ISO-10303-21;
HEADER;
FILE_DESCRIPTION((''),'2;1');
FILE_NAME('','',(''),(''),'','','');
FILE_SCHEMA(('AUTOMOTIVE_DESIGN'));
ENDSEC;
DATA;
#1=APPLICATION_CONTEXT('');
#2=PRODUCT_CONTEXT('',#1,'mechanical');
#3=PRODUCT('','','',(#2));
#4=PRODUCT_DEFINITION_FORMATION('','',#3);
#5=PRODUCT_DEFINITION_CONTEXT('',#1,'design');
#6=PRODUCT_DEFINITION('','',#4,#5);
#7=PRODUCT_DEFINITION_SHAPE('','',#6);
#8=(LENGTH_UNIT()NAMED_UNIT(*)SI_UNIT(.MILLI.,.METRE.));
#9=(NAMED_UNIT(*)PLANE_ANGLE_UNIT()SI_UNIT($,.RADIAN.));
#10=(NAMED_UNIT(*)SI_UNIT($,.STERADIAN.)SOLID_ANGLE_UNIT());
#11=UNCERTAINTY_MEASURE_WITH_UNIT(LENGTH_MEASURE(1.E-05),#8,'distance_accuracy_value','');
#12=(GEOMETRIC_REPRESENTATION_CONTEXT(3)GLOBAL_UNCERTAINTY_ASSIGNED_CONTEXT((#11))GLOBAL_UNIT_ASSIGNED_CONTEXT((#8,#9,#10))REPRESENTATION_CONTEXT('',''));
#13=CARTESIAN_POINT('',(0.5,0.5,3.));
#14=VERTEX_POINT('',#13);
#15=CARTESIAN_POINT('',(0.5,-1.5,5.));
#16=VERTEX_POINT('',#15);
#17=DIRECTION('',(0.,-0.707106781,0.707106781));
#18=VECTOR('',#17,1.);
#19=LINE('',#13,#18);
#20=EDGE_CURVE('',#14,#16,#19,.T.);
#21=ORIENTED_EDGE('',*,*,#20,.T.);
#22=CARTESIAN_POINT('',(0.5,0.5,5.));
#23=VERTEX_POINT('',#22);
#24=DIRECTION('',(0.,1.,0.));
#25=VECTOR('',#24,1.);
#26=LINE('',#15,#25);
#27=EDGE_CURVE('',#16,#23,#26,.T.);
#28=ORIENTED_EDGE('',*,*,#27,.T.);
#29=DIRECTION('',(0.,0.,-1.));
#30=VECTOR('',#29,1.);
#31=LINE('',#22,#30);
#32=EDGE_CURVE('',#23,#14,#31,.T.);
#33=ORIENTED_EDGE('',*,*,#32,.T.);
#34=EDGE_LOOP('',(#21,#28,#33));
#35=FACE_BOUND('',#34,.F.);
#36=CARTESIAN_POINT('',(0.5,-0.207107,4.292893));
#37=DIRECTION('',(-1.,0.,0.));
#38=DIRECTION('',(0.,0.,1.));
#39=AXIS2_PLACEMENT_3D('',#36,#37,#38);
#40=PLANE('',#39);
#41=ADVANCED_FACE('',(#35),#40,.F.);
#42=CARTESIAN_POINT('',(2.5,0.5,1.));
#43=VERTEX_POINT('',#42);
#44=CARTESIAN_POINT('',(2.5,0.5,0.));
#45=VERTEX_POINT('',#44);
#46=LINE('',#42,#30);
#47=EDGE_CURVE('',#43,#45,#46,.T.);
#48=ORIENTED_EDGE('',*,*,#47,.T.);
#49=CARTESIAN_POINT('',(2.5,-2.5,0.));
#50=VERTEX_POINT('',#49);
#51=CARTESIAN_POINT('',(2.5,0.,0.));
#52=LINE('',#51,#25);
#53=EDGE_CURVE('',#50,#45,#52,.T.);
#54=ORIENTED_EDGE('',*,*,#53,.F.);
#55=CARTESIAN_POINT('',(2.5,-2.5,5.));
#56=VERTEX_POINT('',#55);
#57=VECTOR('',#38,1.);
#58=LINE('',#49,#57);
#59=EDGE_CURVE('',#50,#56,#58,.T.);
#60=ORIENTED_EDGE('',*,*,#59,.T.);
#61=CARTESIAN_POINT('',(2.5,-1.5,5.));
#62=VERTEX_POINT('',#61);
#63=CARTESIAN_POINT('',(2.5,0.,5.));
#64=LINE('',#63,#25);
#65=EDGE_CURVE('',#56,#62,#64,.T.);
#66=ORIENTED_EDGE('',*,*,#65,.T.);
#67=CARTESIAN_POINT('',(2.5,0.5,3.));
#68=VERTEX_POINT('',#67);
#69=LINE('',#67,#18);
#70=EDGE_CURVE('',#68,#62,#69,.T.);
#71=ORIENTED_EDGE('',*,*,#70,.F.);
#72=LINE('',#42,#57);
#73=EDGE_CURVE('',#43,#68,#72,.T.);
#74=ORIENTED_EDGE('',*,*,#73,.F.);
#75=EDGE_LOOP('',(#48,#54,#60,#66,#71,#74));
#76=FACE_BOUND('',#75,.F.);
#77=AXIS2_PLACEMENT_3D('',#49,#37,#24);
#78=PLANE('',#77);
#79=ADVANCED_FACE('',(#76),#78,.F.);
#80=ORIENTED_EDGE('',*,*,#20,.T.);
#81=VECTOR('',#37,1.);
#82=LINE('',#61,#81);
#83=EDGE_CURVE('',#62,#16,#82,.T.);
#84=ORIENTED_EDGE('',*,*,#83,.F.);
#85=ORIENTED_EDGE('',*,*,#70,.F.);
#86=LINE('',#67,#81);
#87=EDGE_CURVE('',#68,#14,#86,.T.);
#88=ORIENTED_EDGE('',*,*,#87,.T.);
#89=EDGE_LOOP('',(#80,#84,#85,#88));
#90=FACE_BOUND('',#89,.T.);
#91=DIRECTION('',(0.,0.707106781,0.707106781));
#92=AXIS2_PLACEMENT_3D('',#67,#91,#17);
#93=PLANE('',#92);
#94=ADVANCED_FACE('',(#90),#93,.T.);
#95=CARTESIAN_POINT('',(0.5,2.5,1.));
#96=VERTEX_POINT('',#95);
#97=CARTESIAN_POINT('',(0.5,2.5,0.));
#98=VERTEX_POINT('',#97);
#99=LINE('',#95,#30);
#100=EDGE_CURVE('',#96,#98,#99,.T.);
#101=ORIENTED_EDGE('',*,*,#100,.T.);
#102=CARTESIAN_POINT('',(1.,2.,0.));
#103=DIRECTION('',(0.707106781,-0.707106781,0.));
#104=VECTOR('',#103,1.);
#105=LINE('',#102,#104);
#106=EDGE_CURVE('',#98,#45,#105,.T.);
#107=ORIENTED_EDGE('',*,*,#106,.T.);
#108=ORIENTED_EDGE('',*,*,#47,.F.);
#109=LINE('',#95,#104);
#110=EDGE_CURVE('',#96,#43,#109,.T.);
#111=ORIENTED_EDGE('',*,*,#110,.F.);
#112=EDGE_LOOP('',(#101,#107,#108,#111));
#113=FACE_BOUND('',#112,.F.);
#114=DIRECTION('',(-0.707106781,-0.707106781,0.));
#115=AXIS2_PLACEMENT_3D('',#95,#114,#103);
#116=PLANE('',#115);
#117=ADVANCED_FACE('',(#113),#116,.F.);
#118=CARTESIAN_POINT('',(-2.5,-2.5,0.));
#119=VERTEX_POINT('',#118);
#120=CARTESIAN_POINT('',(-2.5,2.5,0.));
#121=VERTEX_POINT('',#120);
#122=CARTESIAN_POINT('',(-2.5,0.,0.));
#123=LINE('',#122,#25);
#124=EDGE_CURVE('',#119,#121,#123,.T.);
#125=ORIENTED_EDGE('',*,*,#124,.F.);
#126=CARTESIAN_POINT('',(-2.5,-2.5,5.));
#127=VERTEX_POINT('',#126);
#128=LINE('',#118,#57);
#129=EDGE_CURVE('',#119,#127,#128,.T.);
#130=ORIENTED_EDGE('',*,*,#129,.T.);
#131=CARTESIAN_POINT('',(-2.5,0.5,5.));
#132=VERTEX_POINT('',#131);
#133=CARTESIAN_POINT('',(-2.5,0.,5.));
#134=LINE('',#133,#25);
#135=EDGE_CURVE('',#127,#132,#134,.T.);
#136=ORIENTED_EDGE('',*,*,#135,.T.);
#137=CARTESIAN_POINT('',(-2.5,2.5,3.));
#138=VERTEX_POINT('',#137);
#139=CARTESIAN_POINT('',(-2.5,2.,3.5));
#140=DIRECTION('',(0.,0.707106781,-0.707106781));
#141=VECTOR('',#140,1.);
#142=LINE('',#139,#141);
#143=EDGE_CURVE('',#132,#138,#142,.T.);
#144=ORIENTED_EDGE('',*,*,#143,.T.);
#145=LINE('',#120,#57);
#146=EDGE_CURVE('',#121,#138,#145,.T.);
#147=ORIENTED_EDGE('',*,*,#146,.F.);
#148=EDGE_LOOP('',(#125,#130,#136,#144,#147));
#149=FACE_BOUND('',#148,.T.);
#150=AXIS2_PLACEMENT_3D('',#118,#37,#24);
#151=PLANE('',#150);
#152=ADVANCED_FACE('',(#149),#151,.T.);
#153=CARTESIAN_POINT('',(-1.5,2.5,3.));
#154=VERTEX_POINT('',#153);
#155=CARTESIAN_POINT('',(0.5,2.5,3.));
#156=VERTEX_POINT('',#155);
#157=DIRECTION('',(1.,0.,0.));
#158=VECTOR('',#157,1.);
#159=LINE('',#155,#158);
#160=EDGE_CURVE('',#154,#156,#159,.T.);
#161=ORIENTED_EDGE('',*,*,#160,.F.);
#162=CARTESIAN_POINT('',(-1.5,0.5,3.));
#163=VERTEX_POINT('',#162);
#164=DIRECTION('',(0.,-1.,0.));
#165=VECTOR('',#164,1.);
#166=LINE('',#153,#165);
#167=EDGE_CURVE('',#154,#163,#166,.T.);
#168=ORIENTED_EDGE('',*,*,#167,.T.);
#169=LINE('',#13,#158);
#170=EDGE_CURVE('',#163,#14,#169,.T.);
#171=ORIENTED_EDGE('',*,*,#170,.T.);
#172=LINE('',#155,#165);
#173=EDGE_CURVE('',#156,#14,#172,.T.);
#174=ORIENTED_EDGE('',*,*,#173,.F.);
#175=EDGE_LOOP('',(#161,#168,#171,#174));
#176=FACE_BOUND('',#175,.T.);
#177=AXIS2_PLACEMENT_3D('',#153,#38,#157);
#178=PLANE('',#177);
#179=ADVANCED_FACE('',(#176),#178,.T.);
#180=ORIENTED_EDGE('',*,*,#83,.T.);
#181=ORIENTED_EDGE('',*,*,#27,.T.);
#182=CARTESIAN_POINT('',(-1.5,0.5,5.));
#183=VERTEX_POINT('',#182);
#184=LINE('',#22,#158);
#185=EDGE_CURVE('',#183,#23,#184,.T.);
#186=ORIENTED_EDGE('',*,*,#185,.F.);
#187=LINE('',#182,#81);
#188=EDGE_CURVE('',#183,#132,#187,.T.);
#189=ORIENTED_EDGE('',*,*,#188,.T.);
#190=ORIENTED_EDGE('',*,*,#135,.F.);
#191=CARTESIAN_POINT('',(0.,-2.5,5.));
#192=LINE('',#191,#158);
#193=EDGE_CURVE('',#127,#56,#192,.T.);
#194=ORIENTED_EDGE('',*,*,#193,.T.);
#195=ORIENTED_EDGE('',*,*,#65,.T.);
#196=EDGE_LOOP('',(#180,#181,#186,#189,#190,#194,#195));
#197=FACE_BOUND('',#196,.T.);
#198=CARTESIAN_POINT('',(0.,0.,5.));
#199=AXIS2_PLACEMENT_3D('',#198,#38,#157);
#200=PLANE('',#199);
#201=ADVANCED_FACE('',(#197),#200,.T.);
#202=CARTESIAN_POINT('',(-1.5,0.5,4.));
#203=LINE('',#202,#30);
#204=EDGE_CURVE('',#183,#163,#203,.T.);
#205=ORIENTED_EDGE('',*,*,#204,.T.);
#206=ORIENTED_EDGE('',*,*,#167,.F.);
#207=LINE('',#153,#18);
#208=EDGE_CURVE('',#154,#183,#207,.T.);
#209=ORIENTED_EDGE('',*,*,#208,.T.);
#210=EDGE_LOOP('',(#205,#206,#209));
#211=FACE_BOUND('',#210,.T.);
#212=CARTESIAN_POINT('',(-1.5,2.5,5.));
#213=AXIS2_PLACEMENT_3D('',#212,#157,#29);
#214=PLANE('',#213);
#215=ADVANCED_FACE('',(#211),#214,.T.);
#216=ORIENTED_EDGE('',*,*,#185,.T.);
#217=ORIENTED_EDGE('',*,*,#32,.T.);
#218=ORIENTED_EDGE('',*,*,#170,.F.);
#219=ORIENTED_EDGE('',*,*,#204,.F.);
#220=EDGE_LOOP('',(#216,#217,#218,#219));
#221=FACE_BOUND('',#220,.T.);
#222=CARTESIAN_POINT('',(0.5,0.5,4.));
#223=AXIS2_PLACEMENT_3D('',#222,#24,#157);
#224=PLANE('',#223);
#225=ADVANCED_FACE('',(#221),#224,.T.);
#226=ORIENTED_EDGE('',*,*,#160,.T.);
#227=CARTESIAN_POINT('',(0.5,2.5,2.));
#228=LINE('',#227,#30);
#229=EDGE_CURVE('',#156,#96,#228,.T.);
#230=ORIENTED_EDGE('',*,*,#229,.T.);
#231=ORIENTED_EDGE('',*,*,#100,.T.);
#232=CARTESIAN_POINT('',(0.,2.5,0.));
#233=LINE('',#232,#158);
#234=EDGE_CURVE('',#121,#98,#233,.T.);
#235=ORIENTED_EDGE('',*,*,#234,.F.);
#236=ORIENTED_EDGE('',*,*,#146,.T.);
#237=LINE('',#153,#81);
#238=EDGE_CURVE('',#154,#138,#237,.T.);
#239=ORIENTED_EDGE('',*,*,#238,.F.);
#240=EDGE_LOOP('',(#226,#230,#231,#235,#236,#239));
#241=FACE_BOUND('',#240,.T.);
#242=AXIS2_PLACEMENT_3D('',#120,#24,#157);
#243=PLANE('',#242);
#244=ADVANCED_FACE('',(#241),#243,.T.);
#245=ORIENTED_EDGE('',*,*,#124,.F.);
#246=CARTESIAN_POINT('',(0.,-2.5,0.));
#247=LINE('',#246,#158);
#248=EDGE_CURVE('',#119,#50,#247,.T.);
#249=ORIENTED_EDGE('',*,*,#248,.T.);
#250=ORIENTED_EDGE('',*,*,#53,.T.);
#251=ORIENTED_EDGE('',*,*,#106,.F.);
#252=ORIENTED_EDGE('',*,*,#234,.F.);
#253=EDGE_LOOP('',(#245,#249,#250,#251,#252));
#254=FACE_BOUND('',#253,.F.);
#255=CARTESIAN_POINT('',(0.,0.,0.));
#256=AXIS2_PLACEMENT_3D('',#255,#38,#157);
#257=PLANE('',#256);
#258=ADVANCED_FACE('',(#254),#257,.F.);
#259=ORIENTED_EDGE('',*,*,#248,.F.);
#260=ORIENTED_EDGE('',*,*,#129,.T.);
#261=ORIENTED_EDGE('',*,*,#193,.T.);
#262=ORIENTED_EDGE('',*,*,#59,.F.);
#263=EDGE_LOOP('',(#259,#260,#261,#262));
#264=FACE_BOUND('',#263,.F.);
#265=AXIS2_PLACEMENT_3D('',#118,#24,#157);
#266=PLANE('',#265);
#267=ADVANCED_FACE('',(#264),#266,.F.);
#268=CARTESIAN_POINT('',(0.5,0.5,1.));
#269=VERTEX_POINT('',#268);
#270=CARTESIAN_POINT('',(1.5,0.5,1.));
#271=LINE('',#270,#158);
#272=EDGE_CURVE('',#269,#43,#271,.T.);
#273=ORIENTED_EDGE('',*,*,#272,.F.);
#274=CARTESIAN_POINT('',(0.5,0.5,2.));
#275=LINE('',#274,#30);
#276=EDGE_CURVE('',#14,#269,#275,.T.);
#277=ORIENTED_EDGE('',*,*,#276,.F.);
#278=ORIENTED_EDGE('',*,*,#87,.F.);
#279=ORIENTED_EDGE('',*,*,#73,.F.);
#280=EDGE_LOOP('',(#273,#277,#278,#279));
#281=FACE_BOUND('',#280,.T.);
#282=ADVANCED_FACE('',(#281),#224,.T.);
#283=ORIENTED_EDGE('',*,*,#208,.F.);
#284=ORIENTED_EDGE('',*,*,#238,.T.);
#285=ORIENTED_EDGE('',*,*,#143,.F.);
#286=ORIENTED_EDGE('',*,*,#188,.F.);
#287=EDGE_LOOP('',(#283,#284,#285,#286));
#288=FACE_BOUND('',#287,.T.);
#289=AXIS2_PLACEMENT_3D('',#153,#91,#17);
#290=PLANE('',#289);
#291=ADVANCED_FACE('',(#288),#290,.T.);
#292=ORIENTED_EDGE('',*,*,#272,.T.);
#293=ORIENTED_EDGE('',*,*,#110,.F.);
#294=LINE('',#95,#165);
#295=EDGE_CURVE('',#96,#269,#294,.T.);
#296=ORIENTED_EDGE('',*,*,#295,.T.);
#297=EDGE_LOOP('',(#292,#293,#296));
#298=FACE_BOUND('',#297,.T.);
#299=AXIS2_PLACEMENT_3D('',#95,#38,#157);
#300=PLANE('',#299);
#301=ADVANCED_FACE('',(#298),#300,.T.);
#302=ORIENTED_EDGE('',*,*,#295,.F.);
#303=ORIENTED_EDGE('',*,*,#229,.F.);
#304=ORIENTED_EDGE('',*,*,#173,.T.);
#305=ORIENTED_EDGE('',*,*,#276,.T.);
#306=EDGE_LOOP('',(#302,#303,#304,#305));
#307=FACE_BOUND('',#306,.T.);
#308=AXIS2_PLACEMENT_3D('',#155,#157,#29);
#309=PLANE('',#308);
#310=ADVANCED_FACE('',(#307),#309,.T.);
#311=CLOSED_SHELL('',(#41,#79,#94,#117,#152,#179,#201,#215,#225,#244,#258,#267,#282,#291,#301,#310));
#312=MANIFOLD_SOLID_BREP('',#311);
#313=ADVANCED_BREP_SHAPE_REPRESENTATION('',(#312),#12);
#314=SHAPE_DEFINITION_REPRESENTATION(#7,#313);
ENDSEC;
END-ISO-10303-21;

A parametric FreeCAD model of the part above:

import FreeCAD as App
import Part
import Sketcher
from FreeCAD import Vector


def add_polygon(sketch, points):
    """Adds a closed chain of lines whose ends are joined by coincident constraints."""
    first, n = sketch.GeometryCount, len(points)
    for a, b in zip(points, points[1:] + points[:1]):
        sketch.addGeometry(Part.LineSegment(App.Vector(*a, 0), App.Vector(*b, 0)), False)
    for i in range(n):
        sketch.addConstraint(Sketcher.Constraint("Coincident", first + i, 2, first + (i + 1) % n, 1))

doc = App.newDocument("Part")
params = doc.addObject("Spreadsheet::Sheet", "Params")
for row, (alias, value) in enumerate([
    ("sketch1_width", "5 mm"),
    ("pad1_length", "5 mm"),
    ("sketch2_width", "4 mm"),
    ("sketch2_height", "2 mm"),
    ("pocket1_length", "2 mm"),
    ("sketch3_width", "2 mm"),
    ("pocket2_length", "2 mm"),
    ("sketch4_width", "2 mm"),
    ("sketch5_width", "2 mm"),
    ("pocket4_length", "2 mm"),
    ("sketch6_width", "2 mm"),
], start=1):
    params.set(f"A{row}", alias)
    params.set(f"B{row}", "=" + value)
    params.setAlias(f"B{row}", alias)

body = doc.addObject("PartDesign::Body", "Body")

# Sketch on XY plane
sketch1 = doc.addObject("Sketcher::SketchObject", "Sketch")
body.addObject(sketch1)
sketch1.AttachmentSupport = (doc.XY_Plane, [""])
sketch1.MapMode = "FlatFace"
add_polygon(sketch1, [(-2.5, 2.5), (-2.5, -2.5), (2.5, -2.5), (2.5, 2.5)])  # lines 0-3
sketch1.addConstraint(Sketcher.Constraint("Vertical", 0))
sketch1.addConstraint(Sketcher.Constraint("Horizontal", 1))
sketch1.addConstraint(Sketcher.Constraint("Vertical", 2))
sketch1.addConstraint(Sketcher.Constraint("Horizontal", 3))
sketch1.addConstraint(Sketcher.Constraint("Symmetric", 0, 2, 2, 2, -1, 1))
sketch1.addConstraint(Sketcher.Constraint("Equal", 3, 0))
sketch1.addConstraint(Sketcher.Constraint("DistanceX", 1, 1, 1, 2, 5.0))
sketch1.setExpression("Constraints[10]", "Params.sketch1_width")
pad1 = doc.addObject("PartDesign::Pad", "Pad")
body.addObject(pad1)
pad1.Profile = sketch1
pad1.setExpression("Length", "Params.pad1_length")

# Sketch on XZ plane
sketch2 = doc.addObject("Sketcher::SketchObject", "Sketch001")
body.addObject(sketch2)
sketch2.AttachmentSupport = (doc.XZ_Plane, [""])
sketch2.MapMode = "FlatFace"
sketch2.AttachmentOffset = App.Placement(Vector(0, 0, -2.5), App.Rotation())
add_polygon(sketch2, [(-1.5, 3), (-1.5, 5), (2.5, 5), (2.5, 3)])  # lines 0-3
sketch2.addConstraint(Sketcher.Constraint("Vertical", 0))
sketch2.addConstraint(Sketcher.Constraint("Horizontal", 1))
sketch2.addConstraint(Sketcher.Constraint("Vertical", 2))
sketch2.addConstraint(Sketcher.Constraint("Horizontal", 3))
sketch2.addConstraint(Sketcher.Constraint("DistanceX", 1, 1, 1, 2, 4.0))
sketch2.addConstraint(Sketcher.Constraint("DistanceY", 0, 1, 0, 2, 2.0))
sketch2.addConstraint(Sketcher.Constraint("DistanceY", -1, 1, 0, 2, 5.0))
sketch2.addConstraint(Sketcher.Constraint("DistanceX", 0, 2, -1, 1, 1.5))
sketch2.setExpression("Constraints[8]", "Params.sketch2_width")
sketch2.setExpression("Constraints[9]", "Params.sketch2_height")
pocket1 = doc.addObject("PartDesign::Pocket", "Pocket")
body.addObject(pocket1)
pocket1.Profile = sketch2
pocket1.setExpression("Length", "Params.pocket1_length")
pocket1.Reversed = True

# Sketch on XZ plane
sketch3 = doc.addObject("Sketcher::SketchObject", "Sketch002")
body.addObject(sketch3)
sketch3.AttachmentSupport = (doc.XZ_Plane, [""])
sketch3.MapMode = "FlatFace"
sketch3.AttachmentOffset = App.Placement(Vector(0, 0, -2.5), App.Rotation())
add_polygon(sketch3, [(0.5, 1), (0.5, 3), (2.5, 3), (2.5, 1)])  # lines 0-3
sketch3.addConstraint(Sketcher.Constraint("Vertical", 0))
sketch3.addConstraint(Sketcher.Constraint("Horizontal", 1))
sketch3.addConstraint(Sketcher.Constraint("Vertical", 2))
sketch3.addConstraint(Sketcher.Constraint("Horizontal", 3))
sketch3.addConstraint(Sketcher.Constraint("Equal", 3, 0))
sketch3.addConstraint(Sketcher.Constraint("DistanceX", 1, 1, 1, 2, 2.0))
sketch3.addConstraint(Sketcher.Constraint("DistanceY", -1, 1, 0, 2, 3.0))
sketch3.addConstraint(Sketcher.Constraint("DistanceX", -1, 1, 0, 2, 0.5))
sketch3.setExpression("Constraints[9]", "Params.sketch3_width")
pocket2 = doc.addObject("PartDesign::Pocket", "Pocket001")
body.addObject(pocket2)
pocket2.Profile = sketch3
pocket2.setExpression("Length", "Params.pocket2_length")
pocket2.Reversed = True

# Sketch on XY plane
sketch4 = doc.addObject("Sketcher::SketchObject", "Sketch003")
body.addObject(sketch4)
sketch4.AttachmentSupport = (doc.XY_Plane, [""])
sketch4.MapMode = "FlatFace"
sketch4.AttachmentOffset = App.Placement(Vector(0, 0, 1), App.Rotation())
add_polygon(sketch4, [(0.5, 2.5), (2.5, 0.5), (2.5, 2.5)])  # lines 0-2
sketch4.addConstraint(Sketcher.Constraint("Vertical", 1))
sketch4.addConstraint(Sketcher.Constraint("Horizontal", 2))
sketch4.addConstraint(Sketcher.Constraint("Equal", 2, 1))
sketch4.addConstraint(Sketcher.Constraint("DistanceX", 2, 2, 2, 1, 2.0))
sketch4.addConstraint(Sketcher.Constraint("DistanceX", -1, 1, 0, 2, 2.5))
sketch4.addConstraint(Sketcher.Constraint("DistanceY", -1, 1, 0, 2, 0.5))
sketch4.setExpression("Constraints[6]", "Params.sketch4_width")
pocket3 = doc.addObject("PartDesign::Pocket", "Pocket002")
body.addObject(pocket3)
pocket3.Profile = sketch4
pocket3.Type = "ThroughAll"

# Sketch on YZ plane
sketch5 = doc.addObject("Sketcher::SketchObject", "Sketch004")
body.addObject(sketch5)
sketch5.AttachmentSupport = (doc.YZ_Plane, [""])
sketch5.MapMode = "FlatFace"
sketch5.AttachmentOffset = App.Placement(Vector(0, 0, 2.5), App.Rotation())
add_polygon(sketch5, [(0.5, 3), (0.5, 5), (-1.5, 5)])  # lines 0-2
sketch5.addConstraint(Sketcher.Constraint("Vertical", 0))
sketch5.addConstraint(Sketcher.Constraint("Horizontal", 1))
sketch5.addConstraint(Sketcher.Constraint("Equal", 1, 0))
sketch5.addConstraint(Sketcher.Constraint("DistanceX", 1, 2, 1, 1, 2.0))
sketch5.addConstraint(Sketcher.Constraint("DistanceY", -1, 1, 0, 2, 5.0))
sketch5.addConstraint(Sketcher.Constraint("DistanceX", -1, 1, 0, 2, 0.5))
sketch5.setExpression("Constraints[6]", "Params.sketch5_width")
pocket4 = doc.addObject("PartDesign::Pocket", "Pocket003")
body.addObject(pocket4)
pocket4.Profile = sketch5
pocket4.setExpression("Length", "Params.pocket4_length")

# Sketch on YZ plane
sketch6 = doc.addObject("Sketcher::SketchObject", "Sketch005")
body.addObject(sketch6)
sketch6.AttachmentSupport = (doc.YZ_Plane, [""])
sketch6.MapMode = "FlatFace"
sketch6.AttachmentOffset = App.Placement(Vector(0, 0, -1.5), App.Rotation())
add_polygon(sketch6, [(0.5, 5), (2.5, 3), (2.5, 5)])  # lines 0-2
sketch6.addConstraint(Sketcher.Constraint("Vertical", 1))
sketch6.addConstraint(Sketcher.Constraint("Horizontal", 2))
sketch6.addConstraint(Sketcher.Constraint("Equal", 2, 1))
sketch6.addConstraint(Sketcher.Constraint("DistanceX", 2, 2, 2, 1, 2.0))
sketch6.addConstraint(Sketcher.Constraint("DistanceY", -1, 1, 0, 2, 3.0))
sketch6.addConstraint(Sketcher.Constraint("DistanceX", -1, 1, 0, 2, 2.5))
sketch6.setExpression("Constraints[6]", "Params.sketch6_width")
pocket5 = doc.addObject("PartDesign::Pocket", "Pocket004")
body.addObject(pocket5)
pocket5.Profile = sketch6
pocket5.Type = "ThroughAll"

doc.recompute()
